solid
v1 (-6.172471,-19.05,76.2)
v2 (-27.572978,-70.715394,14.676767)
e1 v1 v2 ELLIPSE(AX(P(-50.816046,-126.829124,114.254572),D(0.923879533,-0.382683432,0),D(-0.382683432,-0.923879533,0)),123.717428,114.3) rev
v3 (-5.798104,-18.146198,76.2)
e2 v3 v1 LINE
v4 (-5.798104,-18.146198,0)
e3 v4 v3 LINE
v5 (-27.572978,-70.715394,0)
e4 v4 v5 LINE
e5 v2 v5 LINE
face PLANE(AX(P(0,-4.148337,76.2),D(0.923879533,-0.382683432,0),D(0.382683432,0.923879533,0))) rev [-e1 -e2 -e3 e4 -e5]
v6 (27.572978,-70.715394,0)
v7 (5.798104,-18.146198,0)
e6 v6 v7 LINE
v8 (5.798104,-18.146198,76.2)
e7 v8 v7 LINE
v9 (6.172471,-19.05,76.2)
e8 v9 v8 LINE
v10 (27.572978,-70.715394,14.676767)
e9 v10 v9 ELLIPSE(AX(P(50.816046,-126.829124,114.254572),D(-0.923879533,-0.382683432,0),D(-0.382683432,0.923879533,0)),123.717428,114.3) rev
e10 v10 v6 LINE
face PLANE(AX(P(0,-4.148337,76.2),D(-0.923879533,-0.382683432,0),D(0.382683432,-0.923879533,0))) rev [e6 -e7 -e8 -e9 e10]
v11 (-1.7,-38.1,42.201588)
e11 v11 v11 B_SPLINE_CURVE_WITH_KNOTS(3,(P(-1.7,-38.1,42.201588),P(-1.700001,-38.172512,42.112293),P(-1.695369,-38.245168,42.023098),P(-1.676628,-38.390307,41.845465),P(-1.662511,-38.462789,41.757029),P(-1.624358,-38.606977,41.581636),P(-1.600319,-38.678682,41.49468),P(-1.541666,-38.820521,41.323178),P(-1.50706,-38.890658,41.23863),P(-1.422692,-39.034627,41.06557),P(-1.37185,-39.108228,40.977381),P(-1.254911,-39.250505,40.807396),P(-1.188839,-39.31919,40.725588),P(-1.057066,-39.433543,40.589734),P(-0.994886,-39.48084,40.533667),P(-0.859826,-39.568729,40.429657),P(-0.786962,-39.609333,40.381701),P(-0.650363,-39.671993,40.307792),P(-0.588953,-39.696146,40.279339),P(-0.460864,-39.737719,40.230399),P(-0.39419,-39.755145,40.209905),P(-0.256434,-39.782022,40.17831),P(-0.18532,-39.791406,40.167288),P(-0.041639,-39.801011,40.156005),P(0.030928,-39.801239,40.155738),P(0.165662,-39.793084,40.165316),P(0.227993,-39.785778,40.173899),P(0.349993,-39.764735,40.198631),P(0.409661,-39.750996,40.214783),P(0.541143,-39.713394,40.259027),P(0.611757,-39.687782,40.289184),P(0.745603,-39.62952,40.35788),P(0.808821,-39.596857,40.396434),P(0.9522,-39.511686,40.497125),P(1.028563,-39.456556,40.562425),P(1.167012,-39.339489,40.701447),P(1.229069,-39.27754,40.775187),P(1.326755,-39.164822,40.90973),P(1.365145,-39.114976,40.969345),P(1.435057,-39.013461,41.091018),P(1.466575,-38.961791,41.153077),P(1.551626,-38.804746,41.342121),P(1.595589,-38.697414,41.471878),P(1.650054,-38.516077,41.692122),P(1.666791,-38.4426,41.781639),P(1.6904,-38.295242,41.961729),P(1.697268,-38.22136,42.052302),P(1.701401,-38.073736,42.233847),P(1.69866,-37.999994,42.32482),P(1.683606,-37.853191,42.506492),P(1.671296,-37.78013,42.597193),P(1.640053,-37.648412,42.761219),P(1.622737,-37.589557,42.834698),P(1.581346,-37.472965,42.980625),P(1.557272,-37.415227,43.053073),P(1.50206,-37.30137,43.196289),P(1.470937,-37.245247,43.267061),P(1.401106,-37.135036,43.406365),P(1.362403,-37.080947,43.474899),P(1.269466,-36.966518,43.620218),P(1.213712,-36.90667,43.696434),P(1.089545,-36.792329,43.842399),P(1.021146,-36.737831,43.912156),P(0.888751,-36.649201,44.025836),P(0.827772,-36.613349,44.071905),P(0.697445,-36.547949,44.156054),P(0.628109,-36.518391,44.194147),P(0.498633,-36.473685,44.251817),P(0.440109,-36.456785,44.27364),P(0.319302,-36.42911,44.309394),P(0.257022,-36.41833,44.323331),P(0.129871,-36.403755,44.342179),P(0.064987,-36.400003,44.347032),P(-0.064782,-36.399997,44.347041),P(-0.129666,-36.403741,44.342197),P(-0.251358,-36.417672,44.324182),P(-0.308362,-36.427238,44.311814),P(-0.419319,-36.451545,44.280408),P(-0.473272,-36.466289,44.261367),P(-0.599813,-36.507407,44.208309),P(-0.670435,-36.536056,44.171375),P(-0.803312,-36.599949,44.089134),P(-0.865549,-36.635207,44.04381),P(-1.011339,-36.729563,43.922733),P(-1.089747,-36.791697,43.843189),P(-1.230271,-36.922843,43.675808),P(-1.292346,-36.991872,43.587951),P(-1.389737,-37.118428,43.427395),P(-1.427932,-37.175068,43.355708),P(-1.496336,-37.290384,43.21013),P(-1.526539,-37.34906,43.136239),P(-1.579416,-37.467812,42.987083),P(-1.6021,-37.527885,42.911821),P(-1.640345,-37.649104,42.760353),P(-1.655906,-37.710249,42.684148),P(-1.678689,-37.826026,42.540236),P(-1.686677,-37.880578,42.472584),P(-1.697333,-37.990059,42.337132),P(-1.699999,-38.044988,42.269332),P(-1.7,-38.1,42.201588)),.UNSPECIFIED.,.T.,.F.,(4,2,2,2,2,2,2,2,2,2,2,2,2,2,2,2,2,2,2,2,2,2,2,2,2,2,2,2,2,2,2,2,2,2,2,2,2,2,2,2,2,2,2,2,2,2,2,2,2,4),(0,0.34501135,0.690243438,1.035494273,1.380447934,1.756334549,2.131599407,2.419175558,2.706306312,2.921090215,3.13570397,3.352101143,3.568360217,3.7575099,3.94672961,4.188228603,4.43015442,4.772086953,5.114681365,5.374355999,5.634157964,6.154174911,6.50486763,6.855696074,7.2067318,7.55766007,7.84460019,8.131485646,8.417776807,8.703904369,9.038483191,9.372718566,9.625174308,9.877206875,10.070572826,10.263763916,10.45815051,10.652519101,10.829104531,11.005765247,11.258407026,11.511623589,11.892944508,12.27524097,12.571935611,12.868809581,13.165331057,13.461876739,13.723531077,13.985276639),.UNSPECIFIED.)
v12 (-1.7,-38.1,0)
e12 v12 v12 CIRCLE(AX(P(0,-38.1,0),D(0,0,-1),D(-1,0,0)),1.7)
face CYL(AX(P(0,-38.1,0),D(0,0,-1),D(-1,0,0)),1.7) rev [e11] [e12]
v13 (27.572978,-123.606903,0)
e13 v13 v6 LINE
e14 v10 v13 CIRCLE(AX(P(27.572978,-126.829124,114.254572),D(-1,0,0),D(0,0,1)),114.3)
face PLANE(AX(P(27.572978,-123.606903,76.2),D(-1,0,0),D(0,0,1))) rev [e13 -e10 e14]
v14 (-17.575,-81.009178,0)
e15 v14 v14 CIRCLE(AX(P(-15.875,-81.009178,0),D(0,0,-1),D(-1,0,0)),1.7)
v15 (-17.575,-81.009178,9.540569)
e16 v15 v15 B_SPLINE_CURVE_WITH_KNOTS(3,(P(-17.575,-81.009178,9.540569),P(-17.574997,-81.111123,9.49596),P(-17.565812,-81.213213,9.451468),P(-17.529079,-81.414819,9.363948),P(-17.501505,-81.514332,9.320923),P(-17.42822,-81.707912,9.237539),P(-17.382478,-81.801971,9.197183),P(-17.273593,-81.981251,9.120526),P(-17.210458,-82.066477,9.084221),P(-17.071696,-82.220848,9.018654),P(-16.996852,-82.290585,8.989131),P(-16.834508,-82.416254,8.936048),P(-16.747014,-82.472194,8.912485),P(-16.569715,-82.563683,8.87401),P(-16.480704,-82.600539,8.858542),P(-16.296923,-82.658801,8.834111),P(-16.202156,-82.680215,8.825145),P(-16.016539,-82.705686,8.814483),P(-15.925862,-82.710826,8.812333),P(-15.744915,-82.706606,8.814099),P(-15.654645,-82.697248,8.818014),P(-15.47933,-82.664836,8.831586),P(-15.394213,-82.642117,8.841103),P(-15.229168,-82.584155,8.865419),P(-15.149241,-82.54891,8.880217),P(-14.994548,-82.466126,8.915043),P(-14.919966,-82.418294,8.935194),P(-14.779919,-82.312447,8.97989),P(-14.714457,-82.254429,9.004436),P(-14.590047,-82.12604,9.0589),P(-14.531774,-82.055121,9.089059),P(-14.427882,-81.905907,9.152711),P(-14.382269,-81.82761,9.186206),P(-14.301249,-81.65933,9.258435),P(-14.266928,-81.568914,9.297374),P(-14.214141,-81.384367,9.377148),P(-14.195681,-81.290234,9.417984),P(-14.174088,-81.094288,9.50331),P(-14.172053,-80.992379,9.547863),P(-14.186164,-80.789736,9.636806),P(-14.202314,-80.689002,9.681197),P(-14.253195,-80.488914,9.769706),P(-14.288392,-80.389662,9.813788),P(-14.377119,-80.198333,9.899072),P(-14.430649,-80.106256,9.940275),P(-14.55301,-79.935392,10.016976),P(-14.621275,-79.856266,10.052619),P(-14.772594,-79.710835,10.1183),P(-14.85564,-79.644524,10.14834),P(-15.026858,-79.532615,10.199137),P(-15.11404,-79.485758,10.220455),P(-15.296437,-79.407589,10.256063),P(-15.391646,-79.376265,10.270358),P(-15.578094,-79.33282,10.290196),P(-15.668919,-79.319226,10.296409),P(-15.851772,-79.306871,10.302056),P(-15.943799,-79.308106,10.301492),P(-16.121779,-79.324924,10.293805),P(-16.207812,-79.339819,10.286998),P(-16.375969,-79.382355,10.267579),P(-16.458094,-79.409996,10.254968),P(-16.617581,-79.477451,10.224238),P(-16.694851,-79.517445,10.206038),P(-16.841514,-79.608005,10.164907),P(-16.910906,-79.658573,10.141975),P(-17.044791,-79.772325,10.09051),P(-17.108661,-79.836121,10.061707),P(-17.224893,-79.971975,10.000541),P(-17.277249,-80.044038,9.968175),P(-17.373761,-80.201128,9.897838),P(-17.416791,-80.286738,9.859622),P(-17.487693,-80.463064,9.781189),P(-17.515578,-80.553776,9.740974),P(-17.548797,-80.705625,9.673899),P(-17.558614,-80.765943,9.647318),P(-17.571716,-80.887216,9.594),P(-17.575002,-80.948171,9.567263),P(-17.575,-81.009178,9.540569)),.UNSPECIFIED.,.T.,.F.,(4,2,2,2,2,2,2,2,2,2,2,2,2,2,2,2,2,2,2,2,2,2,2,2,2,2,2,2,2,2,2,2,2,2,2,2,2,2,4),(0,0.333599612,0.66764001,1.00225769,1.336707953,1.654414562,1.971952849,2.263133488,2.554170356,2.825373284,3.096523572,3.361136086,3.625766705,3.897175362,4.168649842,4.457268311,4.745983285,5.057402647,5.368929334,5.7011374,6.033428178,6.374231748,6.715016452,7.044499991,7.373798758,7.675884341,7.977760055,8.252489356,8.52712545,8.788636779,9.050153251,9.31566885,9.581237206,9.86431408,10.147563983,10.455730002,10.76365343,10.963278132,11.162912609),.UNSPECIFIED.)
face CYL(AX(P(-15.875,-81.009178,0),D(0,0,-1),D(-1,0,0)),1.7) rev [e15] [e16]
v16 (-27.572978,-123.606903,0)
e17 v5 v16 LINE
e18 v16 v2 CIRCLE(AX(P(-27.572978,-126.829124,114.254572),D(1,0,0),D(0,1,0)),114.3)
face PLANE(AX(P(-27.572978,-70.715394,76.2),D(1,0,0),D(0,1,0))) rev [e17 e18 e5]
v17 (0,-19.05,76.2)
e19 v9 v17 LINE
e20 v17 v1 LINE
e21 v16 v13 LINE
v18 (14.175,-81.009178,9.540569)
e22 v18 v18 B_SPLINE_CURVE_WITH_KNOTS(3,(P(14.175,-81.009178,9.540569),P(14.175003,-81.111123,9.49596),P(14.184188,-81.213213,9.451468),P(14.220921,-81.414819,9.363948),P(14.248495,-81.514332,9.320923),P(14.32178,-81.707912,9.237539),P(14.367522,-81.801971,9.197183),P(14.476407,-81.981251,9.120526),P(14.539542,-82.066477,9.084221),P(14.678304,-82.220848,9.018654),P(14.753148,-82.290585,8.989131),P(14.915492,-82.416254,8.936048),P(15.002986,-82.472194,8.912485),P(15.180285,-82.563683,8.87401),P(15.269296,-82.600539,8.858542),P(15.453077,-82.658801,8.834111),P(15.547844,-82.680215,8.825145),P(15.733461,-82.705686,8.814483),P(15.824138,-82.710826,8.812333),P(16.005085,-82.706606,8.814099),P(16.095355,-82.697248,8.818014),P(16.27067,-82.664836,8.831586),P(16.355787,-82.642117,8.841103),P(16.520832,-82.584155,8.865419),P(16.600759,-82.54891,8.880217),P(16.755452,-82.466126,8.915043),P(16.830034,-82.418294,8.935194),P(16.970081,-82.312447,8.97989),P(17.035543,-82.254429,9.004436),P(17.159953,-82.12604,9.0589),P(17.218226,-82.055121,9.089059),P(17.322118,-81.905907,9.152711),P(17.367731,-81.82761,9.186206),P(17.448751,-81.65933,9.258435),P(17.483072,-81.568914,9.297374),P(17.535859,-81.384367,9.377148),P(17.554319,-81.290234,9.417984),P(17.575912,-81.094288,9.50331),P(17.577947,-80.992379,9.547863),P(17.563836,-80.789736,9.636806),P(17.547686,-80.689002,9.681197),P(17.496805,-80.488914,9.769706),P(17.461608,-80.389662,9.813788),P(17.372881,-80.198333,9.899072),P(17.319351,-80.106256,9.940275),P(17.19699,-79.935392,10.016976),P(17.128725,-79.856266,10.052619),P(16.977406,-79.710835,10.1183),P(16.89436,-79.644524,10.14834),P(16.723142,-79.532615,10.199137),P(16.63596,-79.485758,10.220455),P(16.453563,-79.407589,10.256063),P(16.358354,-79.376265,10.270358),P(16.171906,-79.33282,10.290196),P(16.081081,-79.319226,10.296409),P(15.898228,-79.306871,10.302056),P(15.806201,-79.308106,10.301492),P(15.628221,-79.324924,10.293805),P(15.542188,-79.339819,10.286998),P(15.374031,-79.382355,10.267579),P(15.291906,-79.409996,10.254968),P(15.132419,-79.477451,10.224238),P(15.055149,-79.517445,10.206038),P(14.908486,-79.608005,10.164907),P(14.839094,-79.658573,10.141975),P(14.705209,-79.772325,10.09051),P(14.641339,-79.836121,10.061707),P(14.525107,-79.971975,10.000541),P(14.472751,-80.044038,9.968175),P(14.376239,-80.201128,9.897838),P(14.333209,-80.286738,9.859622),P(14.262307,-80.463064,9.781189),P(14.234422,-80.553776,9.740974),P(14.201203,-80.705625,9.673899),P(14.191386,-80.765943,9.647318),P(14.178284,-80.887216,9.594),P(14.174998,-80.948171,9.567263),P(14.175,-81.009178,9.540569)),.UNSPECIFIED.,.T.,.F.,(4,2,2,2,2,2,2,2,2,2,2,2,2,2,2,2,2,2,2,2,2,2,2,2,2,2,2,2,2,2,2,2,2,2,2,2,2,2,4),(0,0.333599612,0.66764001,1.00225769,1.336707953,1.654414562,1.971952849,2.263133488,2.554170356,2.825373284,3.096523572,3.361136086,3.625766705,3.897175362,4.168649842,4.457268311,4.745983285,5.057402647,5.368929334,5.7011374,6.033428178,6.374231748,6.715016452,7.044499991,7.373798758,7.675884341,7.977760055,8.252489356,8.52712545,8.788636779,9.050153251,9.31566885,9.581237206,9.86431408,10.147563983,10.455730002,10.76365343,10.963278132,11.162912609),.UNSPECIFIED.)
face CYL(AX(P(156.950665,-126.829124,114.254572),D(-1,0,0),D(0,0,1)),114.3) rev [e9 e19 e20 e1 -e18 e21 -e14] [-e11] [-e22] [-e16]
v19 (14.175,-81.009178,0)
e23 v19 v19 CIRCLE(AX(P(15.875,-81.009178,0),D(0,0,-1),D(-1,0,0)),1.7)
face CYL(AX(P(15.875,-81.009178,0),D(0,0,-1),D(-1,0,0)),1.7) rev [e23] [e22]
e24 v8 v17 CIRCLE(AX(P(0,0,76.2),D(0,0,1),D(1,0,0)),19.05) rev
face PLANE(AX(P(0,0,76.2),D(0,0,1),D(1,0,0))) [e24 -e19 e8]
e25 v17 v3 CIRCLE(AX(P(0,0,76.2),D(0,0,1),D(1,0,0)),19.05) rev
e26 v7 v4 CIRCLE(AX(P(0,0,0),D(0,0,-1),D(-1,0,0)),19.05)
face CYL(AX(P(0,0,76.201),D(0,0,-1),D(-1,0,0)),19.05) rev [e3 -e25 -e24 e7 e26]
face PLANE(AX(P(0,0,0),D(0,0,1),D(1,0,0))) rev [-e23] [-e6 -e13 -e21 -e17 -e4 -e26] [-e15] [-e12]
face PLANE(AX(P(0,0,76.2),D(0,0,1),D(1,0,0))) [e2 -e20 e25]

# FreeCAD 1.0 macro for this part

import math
import FreeCAD as App
import Part
import Sketcher

V = App.Vector
Q = App.Units.Quantity


def add_polygon(sketch, points):
    """Adds a closed chain of lines whose ends are joined by coincident constraints."""
    first, n = sketch.GeometryCount, len(points)
    for a, b in zip(points, points[1:] + points[:1]):
        sketch.addGeometry(Part.LineSegment(App.Vector(*a, 0), App.Vector(*b, 0)), False)
    for i in range(n):
        sketch.addConstraint(Sketcher.Constraint("Coincident", first + i, 2, first + (i + 1) % n, 1))

doc = App.newDocument("Part")
params = doc.addObject("Spreadsheet::Sheet", "Params")
for row, (alias, value) in enumerate([
    ("pad1_length", "3 in"),
    ("sketch2_radius", "4.5 in"),
    ("sketch2_height", "3 in"),
    ("pocket1_length", "55.145956 mm"),
    ("hole_diameter", "3.4 mm"),
    ("sketch4_diameter", "1.5 in"),
    ("pocket2_length", "3 in"),
], start=1):
    params.set(f"A{row}", alias)
    params.set(f"B{row}", "=" + value)
    params.setAlias(f"B{row}", alias)

body = doc.addObject("PartDesign::Body", "Body")

# Sketch on XY plane
sketch1 = body.newObject("Sketcher::SketchObject", "Sketch")
sketch1.AttachmentSupport = (doc.getObject("XY_Plane"), [""])
sketch1.MapMode = "FlatFace"
add_polygon(sketch1, [(28, -124), (28, -71), (0, -4), (-28, -71), (-28, -124)])  # lines 0-4
sketch1.addConstraint(Sketcher.Constraint("Vertical", 0))
sketch1.addConstraint(Sketcher.Constraint("Vertical", 3))
sketch1.addConstraint(Sketcher.Constraint("Horizontal", 4))
sketch1.addConstraint(Sketcher.Constraint("Symmetric", 0, 2, 2, 2, -2))
sketch1.addConstraint(Sketcher.Constraint("PointOnObject", 1, 2, -2))
sketch1.addConstraint(Sketcher.Constraint("Angle", 1, Q("112.5 deg")))
sketch1.addConstraint(Sketcher.Constraint("DistanceY", 0, 1, 0, 2, Q("52.89151 mm")))
sketch1.addConstraint(Sketcher.Constraint("DistanceX", 4, 1, 4, 2, Q("55.145955 mm")))
sketch1.addConstraint(Sketcher.Constraint("DistanceY", 0, 2, -1, 1, Q("70.715394 mm")))
pad1 = body.newObject("PartDesign::Pad", "Pad")
pad1.Profile = sketch1
pad1.setExpression("Length", "Params.pad1_length")

# Sketch on YZ plane
sketch2 = body.newObject("Sketcher::SketchObject", "Sketch001")
sketch2.AttachmentSupport = (doc.getObject("YZ_Plane"), [""])
sketch2.MapMode = "FlatFace"
sketch2.AttachmentOffset = App.Placement(V(0, 0, -27.572978), App.Rotation())
sketch2.addGeometry(Part.LineSegment(V(-124, 76, 0), V(-124, 0, 0)), False)
sketch2.addGeometry(Part.ArcOfCircle(Part.Circle(V(-127, 114, 0), V(0, 0, 1), 114), math.radians(-88), math.radians(-19)), False)
sketch2.addGeometry(Part.LineSegment(V(-19, 76, 0), V(-124, 76, 0)), False)
sketch2.addConstraint(Sketcher.Constraint("Coincident", 0, 2, 1, 1))
sketch2.addConstraint(Sketcher.Constraint("Coincident", 1, 2, 2, 1))
sketch2.addConstraint(Sketcher.Constraint("Coincident", 2, 2, 0, 1))
sketch2.addConstraint(Sketcher.Constraint("Vertical", 0))
sketch2.addConstraint(Sketcher.Constraint("Horizontal", 2))
sketch2.addConstraint(Sketcher.Constraint("PointOnObject", 0, 2, -1))
sketch2.addConstraint(Sketcher.Constraint("Radius", 1, Q("4.5 in")))
sketch2.addConstraint(Sketcher.Constraint("DistanceY", 0, 2, 0, 1, Q("3 in")))
sketch2.addConstraint(Sketcher.Constraint("DistanceX", 1, 2, -1, 1, Q("0.75 in")))
sketch2.addConstraint(Sketcher.Constraint("DistanceX", 2, 2, 2, 1, Q("104.556903 mm")))
sketch2.setExpression("Constraints[6]", "Params.sketch2_radius")
sketch2.setExpression("Constraints[7]", "Params.sketch2_height")
pocket1 = body.newObject("PartDesign::Pocket", "Pocket")
pocket1.Profile = sketch2
pocket1.setExpression("Length", "Params.pocket1_length")
pocket1.Reversed = True

# Sketch on XY plane
sketch3 = body.newObject("Sketcher::SketchObject", "Sketch002")
sketch3.AttachmentSupport = (doc.getObject("XY_Plane"), [""])
sketch3.MapMode = "FlatFace"
sketch3.addGeometry(Part.Circle(V(15.9, -81, 0), V(0, 0, 1), 1.7), False)
sketch3.addGeometry(Part.Circle(V(-15.9, -81, 0), V(0, 0, 1), 1.7), False)
sketch3.addGeometry(Part.Circle(V(0, -38.1, 0), V(0, 0, 1), 1.7), False)
sketch3.addConstraint(Sketcher.Constraint("Equal", 0, 1))
sketch3.addConstraint(Sketcher.Constraint("Equal", 1, 2))
sketch3.addConstraint(Sketcher.Constraint("Symmetric", 0, 3, 1, 3, -2))
sketch3.addConstraint(Sketcher.Constraint("PointOnObject", 2, 3, -2))
sketch3.addConstraint(Sketcher.Constraint("DistanceY", 2, 3, -1, 1, Q("1.5 in")))
sketch3.addConstraint(Sketcher.Constraint("Diameter", 0, Q("3.4 mm")))
sketch3.addConstraint(Sketcher.Constraint("DistanceX", 1, 3, 0, 3, Q("1.25 in")))
sketch3.addConstraint(Sketcher.Constraint("DistanceY", 0, 3, -1, 1, Q("81.009178 mm")))
doc.recompute()
hole = body.newObject("PartDesign::Hole", "Hole")
hole.Profile = sketch3
hole.ThreadType = "None"
hole.setExpression("Diameter", "Params.hole_diameter")
hole.DepthType = "ThroughAll"
hole.Reversed = True

# Sketch on XY plane
sketch4 = body.newObject("Sketcher::SketchObject", "Sketch003")
sketch4.AttachmentSupport = (doc.getObject("XY_Plane"), [""])
sketch4.MapMode = "FlatFace"
sketch4.addGeometry(Part.Circle(V(0, 0, 0), V(0, 0, 1), 19), False)
sketch4.addConstraint(Sketcher.Constraint("Coincident", 0, 3, -1, 1))
sketch4.addConstraint(Sketcher.Constraint("Diameter", 0, Q("1.5 in")))
sketch4.setExpression("Constraints[1]", "Params.sketch4_diameter")
pocket2 = body.newObject("PartDesign::Pocket", "Pocket001")
pocket2.Profile = sketch4
pocket2.setExpression("Length", "Params.pocket2_length")
pocket2.Reversed = True

doc.recompute()
